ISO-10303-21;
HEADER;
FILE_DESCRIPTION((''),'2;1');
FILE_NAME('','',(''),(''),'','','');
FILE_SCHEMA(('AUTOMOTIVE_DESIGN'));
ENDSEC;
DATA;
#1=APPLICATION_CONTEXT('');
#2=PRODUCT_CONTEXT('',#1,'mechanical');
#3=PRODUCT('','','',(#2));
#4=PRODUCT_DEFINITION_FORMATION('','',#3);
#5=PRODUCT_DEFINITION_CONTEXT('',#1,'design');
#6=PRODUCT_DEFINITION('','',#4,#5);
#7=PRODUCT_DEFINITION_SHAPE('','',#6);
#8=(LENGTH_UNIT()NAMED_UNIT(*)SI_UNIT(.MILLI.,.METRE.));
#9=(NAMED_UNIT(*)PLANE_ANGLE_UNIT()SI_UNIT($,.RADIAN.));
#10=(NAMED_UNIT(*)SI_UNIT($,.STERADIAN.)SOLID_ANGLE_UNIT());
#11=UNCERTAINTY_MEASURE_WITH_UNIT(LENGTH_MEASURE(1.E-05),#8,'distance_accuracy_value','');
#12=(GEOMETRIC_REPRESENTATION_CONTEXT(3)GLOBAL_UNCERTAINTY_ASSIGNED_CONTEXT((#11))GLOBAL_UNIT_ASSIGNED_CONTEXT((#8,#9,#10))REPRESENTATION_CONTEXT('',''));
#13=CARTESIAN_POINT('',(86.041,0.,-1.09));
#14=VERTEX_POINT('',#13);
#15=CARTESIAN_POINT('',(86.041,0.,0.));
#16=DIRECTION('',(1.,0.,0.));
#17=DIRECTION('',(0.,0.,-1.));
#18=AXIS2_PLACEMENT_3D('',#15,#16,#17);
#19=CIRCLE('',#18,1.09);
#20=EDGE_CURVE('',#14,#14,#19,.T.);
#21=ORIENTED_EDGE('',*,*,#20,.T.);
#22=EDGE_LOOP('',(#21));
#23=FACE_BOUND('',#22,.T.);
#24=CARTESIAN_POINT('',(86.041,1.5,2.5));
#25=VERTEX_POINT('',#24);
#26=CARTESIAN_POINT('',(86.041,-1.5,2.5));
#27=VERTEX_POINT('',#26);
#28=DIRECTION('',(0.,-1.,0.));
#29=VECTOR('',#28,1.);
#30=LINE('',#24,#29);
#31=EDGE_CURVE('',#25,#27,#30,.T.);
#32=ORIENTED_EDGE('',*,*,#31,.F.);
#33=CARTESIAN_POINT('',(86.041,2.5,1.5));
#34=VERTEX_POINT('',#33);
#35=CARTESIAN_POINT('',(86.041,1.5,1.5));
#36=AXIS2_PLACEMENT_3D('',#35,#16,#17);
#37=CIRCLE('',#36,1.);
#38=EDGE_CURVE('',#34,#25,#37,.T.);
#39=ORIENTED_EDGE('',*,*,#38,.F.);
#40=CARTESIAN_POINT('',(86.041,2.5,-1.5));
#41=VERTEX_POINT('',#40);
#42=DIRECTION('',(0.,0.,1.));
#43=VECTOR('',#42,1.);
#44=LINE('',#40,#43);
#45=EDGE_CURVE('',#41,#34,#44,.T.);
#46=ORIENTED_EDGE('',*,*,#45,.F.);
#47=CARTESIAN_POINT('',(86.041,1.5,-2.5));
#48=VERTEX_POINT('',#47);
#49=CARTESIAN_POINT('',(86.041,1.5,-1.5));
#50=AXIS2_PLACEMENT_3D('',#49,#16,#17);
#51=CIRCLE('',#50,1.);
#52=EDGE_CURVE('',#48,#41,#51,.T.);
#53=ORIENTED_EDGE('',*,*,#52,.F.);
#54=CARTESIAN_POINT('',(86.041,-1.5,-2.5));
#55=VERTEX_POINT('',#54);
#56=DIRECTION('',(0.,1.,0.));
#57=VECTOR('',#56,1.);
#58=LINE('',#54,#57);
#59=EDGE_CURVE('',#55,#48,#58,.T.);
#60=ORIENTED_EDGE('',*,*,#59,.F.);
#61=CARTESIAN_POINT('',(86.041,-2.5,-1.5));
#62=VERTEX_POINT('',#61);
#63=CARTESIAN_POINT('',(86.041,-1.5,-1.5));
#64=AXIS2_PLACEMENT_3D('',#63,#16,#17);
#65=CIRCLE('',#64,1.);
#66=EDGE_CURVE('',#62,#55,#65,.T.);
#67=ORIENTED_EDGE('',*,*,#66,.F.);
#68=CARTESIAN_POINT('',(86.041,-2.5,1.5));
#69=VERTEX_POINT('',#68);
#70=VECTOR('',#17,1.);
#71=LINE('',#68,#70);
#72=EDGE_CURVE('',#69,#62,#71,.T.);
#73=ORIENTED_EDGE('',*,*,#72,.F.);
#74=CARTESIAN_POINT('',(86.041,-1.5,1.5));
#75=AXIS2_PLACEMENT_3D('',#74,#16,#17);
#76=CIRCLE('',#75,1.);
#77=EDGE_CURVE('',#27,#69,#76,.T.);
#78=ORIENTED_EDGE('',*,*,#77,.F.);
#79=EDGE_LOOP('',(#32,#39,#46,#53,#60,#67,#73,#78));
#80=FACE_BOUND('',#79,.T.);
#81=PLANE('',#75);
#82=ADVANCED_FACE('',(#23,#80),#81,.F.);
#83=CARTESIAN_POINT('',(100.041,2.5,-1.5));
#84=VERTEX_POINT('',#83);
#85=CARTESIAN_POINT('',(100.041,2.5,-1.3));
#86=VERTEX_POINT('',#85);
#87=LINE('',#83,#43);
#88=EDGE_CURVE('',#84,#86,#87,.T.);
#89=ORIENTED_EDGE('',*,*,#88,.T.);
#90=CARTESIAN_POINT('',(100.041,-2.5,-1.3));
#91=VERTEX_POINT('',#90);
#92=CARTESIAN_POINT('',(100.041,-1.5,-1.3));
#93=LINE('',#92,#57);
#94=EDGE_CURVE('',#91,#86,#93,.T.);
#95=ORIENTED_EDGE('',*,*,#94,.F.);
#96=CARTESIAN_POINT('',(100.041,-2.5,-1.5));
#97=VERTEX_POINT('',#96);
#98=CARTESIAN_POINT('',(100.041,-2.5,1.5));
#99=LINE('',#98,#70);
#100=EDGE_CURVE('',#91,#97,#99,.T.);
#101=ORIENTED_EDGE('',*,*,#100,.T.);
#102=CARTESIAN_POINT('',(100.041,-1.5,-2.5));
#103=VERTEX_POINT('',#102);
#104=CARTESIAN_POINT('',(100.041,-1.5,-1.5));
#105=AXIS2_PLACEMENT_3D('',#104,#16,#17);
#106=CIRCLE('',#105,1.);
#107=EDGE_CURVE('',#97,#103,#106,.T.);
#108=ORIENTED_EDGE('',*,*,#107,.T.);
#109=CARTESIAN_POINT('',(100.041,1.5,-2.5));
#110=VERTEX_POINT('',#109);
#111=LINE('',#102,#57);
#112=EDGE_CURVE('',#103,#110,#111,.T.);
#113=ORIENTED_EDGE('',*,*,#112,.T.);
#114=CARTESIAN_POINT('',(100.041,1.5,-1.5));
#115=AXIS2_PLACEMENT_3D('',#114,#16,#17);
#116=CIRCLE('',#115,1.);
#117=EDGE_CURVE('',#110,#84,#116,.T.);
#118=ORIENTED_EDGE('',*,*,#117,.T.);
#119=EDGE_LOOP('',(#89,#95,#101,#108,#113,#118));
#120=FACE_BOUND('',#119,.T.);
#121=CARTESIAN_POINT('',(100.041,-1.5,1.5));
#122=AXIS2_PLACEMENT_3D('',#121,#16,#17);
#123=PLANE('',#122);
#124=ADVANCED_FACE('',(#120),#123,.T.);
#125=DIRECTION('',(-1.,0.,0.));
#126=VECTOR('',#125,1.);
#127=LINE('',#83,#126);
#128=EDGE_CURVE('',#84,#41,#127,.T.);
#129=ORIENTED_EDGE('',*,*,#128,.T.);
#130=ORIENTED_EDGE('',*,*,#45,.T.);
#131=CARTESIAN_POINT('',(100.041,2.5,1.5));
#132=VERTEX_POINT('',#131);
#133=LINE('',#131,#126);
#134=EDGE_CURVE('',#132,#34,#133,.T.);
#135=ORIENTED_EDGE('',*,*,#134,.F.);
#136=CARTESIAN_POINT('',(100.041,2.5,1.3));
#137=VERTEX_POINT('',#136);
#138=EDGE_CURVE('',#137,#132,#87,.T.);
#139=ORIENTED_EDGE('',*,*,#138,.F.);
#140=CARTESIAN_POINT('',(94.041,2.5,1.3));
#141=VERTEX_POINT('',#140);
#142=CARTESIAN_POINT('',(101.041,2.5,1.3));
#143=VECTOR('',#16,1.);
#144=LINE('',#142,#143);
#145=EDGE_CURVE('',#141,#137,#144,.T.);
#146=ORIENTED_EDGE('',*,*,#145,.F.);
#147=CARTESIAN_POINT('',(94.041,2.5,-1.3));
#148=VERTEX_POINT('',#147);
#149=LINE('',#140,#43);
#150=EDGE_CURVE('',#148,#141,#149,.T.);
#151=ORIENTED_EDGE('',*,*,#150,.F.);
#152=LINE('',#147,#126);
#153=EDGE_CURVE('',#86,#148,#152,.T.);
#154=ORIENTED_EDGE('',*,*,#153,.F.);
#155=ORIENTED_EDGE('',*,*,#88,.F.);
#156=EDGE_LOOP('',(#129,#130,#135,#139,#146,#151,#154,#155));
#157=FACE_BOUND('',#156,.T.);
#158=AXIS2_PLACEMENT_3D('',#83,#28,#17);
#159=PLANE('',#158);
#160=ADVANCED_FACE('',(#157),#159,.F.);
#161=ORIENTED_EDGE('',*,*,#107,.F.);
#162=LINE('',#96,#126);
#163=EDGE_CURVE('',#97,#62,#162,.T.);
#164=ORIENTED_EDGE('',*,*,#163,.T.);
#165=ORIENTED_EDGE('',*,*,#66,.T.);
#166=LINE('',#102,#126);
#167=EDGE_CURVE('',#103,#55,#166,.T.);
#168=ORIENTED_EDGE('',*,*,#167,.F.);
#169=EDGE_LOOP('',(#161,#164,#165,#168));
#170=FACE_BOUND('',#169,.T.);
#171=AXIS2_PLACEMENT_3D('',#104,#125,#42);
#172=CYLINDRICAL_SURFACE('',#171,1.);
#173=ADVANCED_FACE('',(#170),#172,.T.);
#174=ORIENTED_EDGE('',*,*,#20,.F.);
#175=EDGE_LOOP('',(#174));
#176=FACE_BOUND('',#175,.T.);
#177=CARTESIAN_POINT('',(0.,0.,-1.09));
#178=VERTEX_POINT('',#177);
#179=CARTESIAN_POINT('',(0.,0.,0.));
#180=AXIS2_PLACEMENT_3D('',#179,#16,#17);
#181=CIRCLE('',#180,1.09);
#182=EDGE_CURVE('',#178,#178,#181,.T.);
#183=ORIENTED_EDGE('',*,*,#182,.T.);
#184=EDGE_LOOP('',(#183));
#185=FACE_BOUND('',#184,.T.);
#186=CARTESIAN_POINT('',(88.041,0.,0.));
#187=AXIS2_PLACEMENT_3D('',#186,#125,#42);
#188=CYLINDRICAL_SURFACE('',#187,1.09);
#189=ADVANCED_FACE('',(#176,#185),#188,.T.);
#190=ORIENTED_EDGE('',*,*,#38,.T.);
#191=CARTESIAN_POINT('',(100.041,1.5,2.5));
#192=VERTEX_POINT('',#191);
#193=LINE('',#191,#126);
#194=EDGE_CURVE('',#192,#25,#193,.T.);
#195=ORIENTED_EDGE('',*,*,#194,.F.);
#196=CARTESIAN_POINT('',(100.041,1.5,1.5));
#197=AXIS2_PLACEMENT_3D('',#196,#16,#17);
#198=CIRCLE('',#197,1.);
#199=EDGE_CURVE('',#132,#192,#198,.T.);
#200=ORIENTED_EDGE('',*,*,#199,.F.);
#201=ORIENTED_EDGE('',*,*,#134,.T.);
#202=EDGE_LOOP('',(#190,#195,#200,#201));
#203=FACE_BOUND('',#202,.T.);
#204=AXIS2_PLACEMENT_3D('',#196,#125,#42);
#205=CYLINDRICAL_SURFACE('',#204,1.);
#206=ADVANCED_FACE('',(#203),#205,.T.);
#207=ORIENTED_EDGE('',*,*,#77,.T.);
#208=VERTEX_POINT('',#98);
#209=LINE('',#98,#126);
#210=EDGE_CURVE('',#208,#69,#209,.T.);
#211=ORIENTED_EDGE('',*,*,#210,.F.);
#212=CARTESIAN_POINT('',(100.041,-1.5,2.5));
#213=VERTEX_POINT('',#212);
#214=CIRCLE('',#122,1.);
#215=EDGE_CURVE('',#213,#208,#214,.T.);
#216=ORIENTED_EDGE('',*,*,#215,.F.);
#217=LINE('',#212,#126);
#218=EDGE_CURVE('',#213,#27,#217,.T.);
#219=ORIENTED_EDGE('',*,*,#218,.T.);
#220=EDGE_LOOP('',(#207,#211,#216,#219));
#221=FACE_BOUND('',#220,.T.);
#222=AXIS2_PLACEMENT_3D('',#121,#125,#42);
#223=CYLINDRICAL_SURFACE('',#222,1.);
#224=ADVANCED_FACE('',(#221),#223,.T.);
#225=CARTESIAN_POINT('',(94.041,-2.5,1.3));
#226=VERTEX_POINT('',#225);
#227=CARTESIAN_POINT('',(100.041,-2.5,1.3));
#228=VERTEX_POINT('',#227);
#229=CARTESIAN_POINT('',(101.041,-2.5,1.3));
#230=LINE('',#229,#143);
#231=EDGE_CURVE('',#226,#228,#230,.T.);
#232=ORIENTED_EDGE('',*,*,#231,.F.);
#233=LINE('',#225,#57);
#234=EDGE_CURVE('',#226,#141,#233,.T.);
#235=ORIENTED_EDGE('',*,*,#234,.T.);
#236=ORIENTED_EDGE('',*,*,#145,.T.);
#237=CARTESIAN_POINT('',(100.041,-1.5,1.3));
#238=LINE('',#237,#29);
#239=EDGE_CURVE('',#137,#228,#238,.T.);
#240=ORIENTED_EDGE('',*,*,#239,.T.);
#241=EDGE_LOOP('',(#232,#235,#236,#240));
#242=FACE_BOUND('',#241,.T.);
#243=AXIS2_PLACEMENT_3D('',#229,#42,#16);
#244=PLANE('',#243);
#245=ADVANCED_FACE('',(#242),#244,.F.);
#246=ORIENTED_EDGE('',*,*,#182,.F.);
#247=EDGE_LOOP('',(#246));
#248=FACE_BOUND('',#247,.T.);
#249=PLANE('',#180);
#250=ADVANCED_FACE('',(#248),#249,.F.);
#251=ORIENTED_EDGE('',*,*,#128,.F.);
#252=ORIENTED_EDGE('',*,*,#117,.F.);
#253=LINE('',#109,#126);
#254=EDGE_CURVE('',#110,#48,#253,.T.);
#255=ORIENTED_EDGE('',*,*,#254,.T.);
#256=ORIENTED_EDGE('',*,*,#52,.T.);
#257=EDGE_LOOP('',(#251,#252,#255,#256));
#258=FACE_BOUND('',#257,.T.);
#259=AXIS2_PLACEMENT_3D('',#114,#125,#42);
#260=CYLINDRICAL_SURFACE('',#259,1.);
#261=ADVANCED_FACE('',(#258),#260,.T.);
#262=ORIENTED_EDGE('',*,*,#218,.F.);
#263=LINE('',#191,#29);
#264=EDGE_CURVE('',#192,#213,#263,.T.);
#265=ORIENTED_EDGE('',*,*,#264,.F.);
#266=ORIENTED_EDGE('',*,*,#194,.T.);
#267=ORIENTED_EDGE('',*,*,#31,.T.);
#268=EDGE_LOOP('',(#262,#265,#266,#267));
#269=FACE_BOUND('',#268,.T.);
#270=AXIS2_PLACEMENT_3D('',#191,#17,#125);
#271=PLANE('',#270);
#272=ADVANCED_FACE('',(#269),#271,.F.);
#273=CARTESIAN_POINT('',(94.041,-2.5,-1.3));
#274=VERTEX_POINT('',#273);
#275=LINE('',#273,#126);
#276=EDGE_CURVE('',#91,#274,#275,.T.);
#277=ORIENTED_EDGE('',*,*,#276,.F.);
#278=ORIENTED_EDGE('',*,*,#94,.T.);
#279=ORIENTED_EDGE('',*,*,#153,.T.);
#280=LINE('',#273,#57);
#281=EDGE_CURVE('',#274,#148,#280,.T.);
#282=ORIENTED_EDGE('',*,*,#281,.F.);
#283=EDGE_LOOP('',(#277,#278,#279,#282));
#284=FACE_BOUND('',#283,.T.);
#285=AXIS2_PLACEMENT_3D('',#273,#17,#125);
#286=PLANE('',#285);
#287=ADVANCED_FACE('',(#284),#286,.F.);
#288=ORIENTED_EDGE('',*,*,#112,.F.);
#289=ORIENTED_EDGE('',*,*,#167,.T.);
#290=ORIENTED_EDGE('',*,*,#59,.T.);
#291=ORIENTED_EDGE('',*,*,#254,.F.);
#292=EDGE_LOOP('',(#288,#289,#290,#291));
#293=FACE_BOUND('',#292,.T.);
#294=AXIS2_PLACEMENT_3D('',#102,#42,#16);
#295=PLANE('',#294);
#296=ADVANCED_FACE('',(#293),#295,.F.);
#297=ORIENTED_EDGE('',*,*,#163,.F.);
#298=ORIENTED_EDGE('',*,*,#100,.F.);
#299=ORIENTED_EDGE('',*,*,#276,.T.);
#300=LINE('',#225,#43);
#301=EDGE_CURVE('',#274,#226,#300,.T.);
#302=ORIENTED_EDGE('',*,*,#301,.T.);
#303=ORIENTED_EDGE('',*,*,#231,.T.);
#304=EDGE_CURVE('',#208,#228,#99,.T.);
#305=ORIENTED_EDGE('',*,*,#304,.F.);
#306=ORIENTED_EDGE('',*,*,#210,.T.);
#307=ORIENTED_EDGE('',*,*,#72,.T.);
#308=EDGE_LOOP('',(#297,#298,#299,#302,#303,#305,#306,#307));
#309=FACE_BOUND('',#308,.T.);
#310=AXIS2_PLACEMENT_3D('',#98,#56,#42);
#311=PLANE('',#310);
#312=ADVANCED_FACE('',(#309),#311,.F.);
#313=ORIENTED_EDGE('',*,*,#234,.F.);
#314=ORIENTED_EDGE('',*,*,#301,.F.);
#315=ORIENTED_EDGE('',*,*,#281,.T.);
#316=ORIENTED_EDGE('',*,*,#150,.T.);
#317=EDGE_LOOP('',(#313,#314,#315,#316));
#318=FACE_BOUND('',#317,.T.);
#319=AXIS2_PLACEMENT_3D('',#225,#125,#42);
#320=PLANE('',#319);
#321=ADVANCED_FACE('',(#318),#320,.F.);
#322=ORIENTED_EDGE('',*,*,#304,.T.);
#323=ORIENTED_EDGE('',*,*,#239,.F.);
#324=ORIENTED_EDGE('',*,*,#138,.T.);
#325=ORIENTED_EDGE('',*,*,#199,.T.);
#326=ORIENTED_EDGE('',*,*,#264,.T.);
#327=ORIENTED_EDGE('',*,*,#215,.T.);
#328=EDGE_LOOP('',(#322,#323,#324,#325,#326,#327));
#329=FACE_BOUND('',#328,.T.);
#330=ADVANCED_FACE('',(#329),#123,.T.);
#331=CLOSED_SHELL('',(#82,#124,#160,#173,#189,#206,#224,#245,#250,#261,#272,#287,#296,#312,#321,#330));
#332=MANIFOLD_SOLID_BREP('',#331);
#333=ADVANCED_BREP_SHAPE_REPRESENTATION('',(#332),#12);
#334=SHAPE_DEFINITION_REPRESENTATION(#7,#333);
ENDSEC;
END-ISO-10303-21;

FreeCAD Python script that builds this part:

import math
import FreeCAD as App
import Part
import Sketcher

V = App.Vector


def add_polygon(sketch, points):
    """Adds a closed chain of lines whose ends are joined by coincident constraints."""
    first, n = sketch.GeometryCount, len(points)
    for a, b in zip(points, points[1:] + points[:1]):
        sketch.addGeometry(Part.LineSegment(App.Vector(*a, 0), App.Vector(*b, 0)), False)
    for i in range(n):
        sketch.addConstraint(Sketcher.Constraint("Coincident", first + i, 2, first + (i + 1) % n, 1))

doc = App.newDocument("Part")
params = doc.addObject("Spreadsheet::Sheet", "Params")
for row, (alias, value) in enumerate([
    ("sketch1_diameter", "2.18 mm"),
    ("pad1_length", "88.041 mm"),
    ("sketch2_radius", "1 mm"),
    ("sketch2_width", "3 mm"),
    ("pad2_length", "14 mm"),
    ("sketch3_width", "7 mm"),
    ("sketch3_height", "2.6 mm"),
], start=1):
    params.set(f"A{row}", alias)
    params.set(f"B{row}", "=" + value)
    params.setAlias(f"B{row}", alias)

body = doc.addObject("PartDesign::Body", "Body")

sketch1 = body.newObject("Sketcher::SketchObject", "Sketch")
sketch1.AttachmentSupport = (doc.getObject("YZ_Plane"), [""])
sketch1.MapMode = "FlatFace"
sketch1.addGeometry(Part.Circle(V(0, 0, 0), V(0, 0, 1), 1.1), False)
sketch1.addConstraint([
    Sketcher.Constraint("Coincident", 0, 3, -1, 1),
    Sketcher.Constraint("Diameter", 0, 2.18),
])
sketch1.setExpression("Constraints[1]", "Params.sketch1_diameter")
pad1 = body.newObject("PartDesign::Pad", "Pad")
pad1.Profile = sketch1
pad1.setExpression("Length", "Params.pad1_length")

sketch2 = body.newObject("Sketcher::SketchObject", "Sketch001")
sketch2.AttachmentSupport = (doc.getObject("YZ_Plane"), [""])
sketch2.MapMode = "FlatFace"
sketch2.AttachmentOffset = App.Placement(V(0, 0, 86.041), App.Rotation())
sketch2.addGeometry([
    Part.LineSegment(V(-2.5, 1.5, 0), V(-2.5, -1.5, 0)),
    Part.ArcOfCircle(Part.Circle(V(-1.5, -1.5, 0), V(0, 0, 1), 1), math.radians(-180), math.radians(-90)),
    Part.LineSegment(V(-1.5, -2.5, 0), V(1.5, -2.5, 0)),
    Part.ArcOfCircle(Part.Circle(V(1.5, -1.5, 0), V(0, 0, 1), 1), math.radians(-90), math.radians(0)),
    Part.LineSegment(V(2.5, -1.5, 0), V(2.5, 1.5, 0)),
    Part.ArcOfCircle(Part.Circle(V(1.5, 1.5, 0), V(0, 0, 1), 1), math.radians(0), math.radians(90)),
    Part.LineSegment(V(1.5, 2.5, 0), V(-1.5, 2.5, 0)),
    Part.ArcOfCircle(Part.Circle(V(-1.5, 1.5, 0), V(0, 0, 1), 1), math.radians(90), math.radians(180)),
], False)
sketch2.addConstraint([
    Sketcher.Constraint("Tangent", 0, 2, 1, 1),
    Sketcher.Constraint("Tangent", 1, 2, 2, 1),
    Sketcher.Constraint("Tangent", 2, 2, 3, 1),
    Sketcher.Constraint("Tangent", 3, 2, 4, 1),
    Sketcher.Constraint("Tangent", 4, 2, 5, 1),
    Sketcher.Constraint("Tangent", 5, 2, 6, 1),
    Sketcher.Constraint("Tangent", 6, 2, 7, 1),
    Sketcher.Constraint("Tangent", 7, 2, 0, 1),
    Sketcher.Constraint("Vertical", 0),
    Sketcher.Constraint("Horizontal", 2),
    Sketcher.Constraint("Vertical", 4),
    Sketcher.Constraint("Horizontal", 6),
    Sketcher.Constraint("Equal", 1, 3),
    Sketcher.Constraint("Equal", 3, 5),
    Sketcher.Constraint("Equal", 5, 7),
    Sketcher.Constraint("Symmetric", 1, 3, 5, 3, -1, 1),
    Sketcher.Constraint("Equal", 6, 0),
    Sketcher.Constraint("Radius", 1, 1.0),
    Sketcher.Constraint("DistanceX", 2, 1, 2, 2, 3.0),
])
sketch2.setExpression("Constraints[17]", "Params.sketch2_radius")
sketch2.setExpression("Constraints[18]", "Params.sketch2_width")
pad2 = body.newObject("PartDesign::Pad", "Pad001")
pad2.Profile = sketch2
pad2.setExpression("Length", "Params.pad2_length")

sketch3 = body.newObject("Sketcher::SketchObject", "Sketch002")
sketch3.AttachmentSupport = (doc.getObject("XZ_Plane"), [""])
sketch3.MapMode = "FlatFace"
add_polygon(sketch3, [(94, -1.3), (94, 1.3), (101, 1.3), (101, -1.3)])
sketch3.addConstraint([
    Sketcher.Constraint("Vertical", 0),
    Sketcher.Constraint("Horizontal", 1),
    Sketcher.Constraint("Vertical", 2),
    Sketcher.Constraint("Horizontal", 3),
    Sketcher.Constraint("DistanceX", 1, 1, 1, 2, 7.0),
    Sketcher.Constraint("DistanceY", 0, 1, 0, 2, 2.6),
    Sketcher.Constraint("DistanceY", -1, 1, 0, 2, 1.3),
    Sketcher.Constraint("DistanceX", -1, 1, 0, 2, 94.041),
])
sketch3.setExpression("Constraints[8]", "Params.sketch3_width")
sketch3.setExpression("Constraints[9]", "Params.sketch3_height")
pocket1 = body.newObject("PartDesign::Pocket", "Pocket")
pocket1.Profile = sketch3
pocket1.Type = "ThroughAll"
pocket1.Midplane = True

doc.recompute()
